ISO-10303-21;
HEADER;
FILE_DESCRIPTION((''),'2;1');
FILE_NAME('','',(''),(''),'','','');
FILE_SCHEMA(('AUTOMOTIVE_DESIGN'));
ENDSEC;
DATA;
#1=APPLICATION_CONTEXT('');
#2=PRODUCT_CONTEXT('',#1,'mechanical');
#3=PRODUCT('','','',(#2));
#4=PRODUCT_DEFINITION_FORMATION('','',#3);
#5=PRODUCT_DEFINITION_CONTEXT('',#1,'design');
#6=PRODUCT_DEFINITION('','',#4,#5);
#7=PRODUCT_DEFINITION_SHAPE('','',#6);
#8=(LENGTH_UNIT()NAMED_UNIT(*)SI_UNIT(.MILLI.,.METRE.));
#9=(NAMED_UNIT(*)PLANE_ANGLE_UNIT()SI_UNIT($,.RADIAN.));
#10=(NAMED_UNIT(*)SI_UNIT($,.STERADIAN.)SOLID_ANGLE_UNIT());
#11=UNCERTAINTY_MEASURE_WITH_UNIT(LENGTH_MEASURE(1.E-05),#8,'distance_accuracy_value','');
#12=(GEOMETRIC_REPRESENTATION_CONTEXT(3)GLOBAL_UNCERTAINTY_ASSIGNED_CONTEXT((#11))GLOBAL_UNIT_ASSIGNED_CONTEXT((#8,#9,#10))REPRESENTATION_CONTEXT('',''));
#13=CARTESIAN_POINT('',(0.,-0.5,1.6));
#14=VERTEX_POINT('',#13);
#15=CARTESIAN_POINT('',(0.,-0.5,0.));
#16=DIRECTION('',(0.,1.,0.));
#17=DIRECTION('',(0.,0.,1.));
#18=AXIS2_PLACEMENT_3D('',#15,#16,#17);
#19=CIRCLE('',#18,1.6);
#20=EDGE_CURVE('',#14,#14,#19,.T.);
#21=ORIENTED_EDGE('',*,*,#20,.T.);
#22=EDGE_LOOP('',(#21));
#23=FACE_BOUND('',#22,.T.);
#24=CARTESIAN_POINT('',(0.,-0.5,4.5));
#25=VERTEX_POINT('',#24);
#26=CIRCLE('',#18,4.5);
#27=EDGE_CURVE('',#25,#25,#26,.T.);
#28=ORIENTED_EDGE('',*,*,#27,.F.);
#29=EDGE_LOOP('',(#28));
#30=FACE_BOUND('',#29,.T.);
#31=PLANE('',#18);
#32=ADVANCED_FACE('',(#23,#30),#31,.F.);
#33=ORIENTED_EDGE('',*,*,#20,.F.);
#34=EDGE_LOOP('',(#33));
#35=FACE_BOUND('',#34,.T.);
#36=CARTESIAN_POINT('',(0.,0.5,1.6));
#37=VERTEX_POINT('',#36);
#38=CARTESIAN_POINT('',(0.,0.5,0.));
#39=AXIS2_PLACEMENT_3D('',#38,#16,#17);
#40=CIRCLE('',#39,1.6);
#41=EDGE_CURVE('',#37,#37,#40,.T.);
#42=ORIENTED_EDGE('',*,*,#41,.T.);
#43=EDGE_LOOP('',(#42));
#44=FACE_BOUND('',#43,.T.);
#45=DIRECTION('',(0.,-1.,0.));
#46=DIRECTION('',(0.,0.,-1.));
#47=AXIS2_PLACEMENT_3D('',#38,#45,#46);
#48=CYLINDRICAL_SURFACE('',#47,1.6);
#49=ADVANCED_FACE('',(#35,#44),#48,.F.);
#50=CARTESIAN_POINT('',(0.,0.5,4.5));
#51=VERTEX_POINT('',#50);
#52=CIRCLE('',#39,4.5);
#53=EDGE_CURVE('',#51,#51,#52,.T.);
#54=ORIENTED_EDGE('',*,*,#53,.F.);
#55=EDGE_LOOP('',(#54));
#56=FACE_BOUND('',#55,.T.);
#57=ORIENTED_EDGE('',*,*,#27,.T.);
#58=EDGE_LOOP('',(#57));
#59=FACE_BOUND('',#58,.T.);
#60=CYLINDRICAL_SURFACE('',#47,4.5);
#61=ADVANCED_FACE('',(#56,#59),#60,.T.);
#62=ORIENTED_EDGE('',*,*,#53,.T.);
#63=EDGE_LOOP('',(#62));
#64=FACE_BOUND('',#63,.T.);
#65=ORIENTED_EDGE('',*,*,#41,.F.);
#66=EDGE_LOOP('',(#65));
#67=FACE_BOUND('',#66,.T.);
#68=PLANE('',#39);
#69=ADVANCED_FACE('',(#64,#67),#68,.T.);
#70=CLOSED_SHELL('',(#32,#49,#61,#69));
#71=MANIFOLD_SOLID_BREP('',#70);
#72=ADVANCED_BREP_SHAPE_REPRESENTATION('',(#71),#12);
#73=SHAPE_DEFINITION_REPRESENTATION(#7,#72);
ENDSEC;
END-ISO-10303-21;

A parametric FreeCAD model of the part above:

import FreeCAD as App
import Part
import Sketcher
Q = App.Units.Quantity

doc = App.newDocument("Part")
body = doc.addObject("PartDesign::Body", "Body")

# Sketch on XZ plane
sketch1 = body.newObject("Sketcher::SketchObject", "Sketch")
sketch1.AttachmentSupport = (doc.getObject("XZ_Plane"), [""])
sketch1.MapMode = "FlatFace"
sketch1.addGeometry(Part.Circle(App.Vector(0, 0, 0), App.Vector(0, 0, 1), 4.5), False)
sketch1.addGeometry(Part.Circle(App.Vector(0, 0, 0), App.Vector(0, 0, 1), 1.6), False)
sketch1.addConstraint(Sketcher.Constraint("Coincident", 0, 3, -1, 1))
sketch1.addConstraint(Sketcher.Constraint("Coincident", 1, 3, -1, 1))
sketch1.addConstraint(Sketcher.Constraint("Diameter", 0, Q("9 mm")))
sketch1.addConstraint(Sketcher.Constraint("Diameter", 1, Q("3.2 mm")))
pad1 = body.newObject("PartDesign::Pad", "Pad")
pad1.Profile = sketch1
pad1.Length = 1
pad1.Midplane = True

doc.recompute()
